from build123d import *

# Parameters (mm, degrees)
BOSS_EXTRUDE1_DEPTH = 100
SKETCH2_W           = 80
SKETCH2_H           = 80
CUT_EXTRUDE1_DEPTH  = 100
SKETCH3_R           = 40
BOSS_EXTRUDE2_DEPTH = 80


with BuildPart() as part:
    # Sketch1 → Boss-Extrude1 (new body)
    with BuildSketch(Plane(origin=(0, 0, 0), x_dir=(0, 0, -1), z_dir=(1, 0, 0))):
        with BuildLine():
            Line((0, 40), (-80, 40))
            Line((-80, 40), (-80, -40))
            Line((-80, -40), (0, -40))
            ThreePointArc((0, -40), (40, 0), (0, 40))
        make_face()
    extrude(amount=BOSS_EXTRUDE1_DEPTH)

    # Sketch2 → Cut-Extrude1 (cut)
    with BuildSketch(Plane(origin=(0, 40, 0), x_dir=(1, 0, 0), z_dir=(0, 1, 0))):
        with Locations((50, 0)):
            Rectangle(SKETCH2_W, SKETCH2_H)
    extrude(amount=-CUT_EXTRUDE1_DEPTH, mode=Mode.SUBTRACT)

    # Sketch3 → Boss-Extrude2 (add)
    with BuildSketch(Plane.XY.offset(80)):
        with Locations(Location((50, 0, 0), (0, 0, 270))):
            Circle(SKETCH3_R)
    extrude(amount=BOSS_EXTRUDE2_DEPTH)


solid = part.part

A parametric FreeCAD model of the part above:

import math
import FreeCAD as App
import Part
import Sketcher
from FreeCAD import Vector

doc = App.newDocument("Part")
body = doc.addObject("PartDesign::Body", "Body")

# Sketch on YZ plane
sketch1 = doc.addObject("Sketcher::SketchObject", "Sketch")
body.addObject(sketch1)
sketch1.AttachmentSupport = (doc.YZ_Plane, [""])
sketch1.MapMode = "FlatFace"
sketch1.addGeometry(Part.LineSegment(Vector(40, 0, 0), Vector(40, 80, 0)), False)
sketch1.addGeometry(Part.LineSegment(Vector(40, 80, 0), Vector(-40, 80, 0)), False)
sketch1.addGeometry(Part.LineSegment(Vector(-40, 80, 0), Vector(-40, 0, 0)), False)
sketch1.addGeometry(Part.ArcOfCircle(Part.Circle(Vector(0, 0, 0), Vector(0, 0, 1), 40), math.radians(180), math.radians(360)), False)
sketch1.addConstraint(Sketcher.Constraint("Coincident", 0, 2, 1, 1))
sketch1.addConstraint(Sketcher.Constraint("Coincident", 1, 2, 2, 1))
sketch1.addConstraint(Sketcher.Constraint("Tangent", 2, 2, 3, 1))
sketch1.addConstraint(Sketcher.Constraint("Tangent", 3, 2, 0, 1))
sketch1.addConstraint(Sketcher.Constraint("Vertical", 0))
sketch1.addConstraint(Sketcher.Constraint("Horizontal", 1))
sketch1.addConstraint(Sketcher.Constraint("Vertical", 2))
sketch1.addConstraint(Sketcher.Constraint("Coincident", 3, 3, -1, 1))
sketch1.addConstraint(Sketcher.Constraint("Equal", 1, 0))
sketch1.addConstraint(Sketcher.Constraint("Radius", 3, 40.0))
pad1 = doc.addObject("PartDesign::Pad", "Pad")
body.addObject(pad1)
pad1.Profile = sketch1
pad1.Length = 100

# Sketch on XZ plane
sketch2 = doc.addObject("Sketcher::SketchObject", "Sketch001")
body.addObject(sketch2)
sketch2.AttachmentSupport = (doc.XZ_Plane, [""])
sketch2.MapMode = "FlatFace"
sketch2.AttachmentOffset = App.Placement(Vector(0, 0, -40), App.Rotation())
sketch2.addGeometry(Part.LineSegment(Vector(10, -40, 0), Vector(10, 40, 0)), False)
sketch2.addGeometry(Part.LineSegment(Vector(10, 40, 0), Vector(90, 40, 0)), False)
sketch2.addGeometry(Part.LineSegment(Vector(90, 40, 0), Vector(90, -40, 0)), False)
sketch2.addGeometry(Part.LineSegment(Vector(90, -40, 0), Vector(10, -40, 0)), False)
sketch2.addConstraint(Sketcher.Constraint("Coincident", 0, 2, 1, 1))
sketch2.addConstraint(Sketcher.Constraint("Coincident", 1, 2, 2, 1))
sketch2.addConstraint(Sketcher.Constraint("Coincident", 2, 2, 3, 1))
sketch2.addConstraint(Sketcher.Constraint("Coincident", 3, 2, 0, 1))
sketch2.addConstraint(Sketcher.Constraint("Vertical", 0))
sketch2.addConstraint(Sketcher.Constraint("Horizontal", 1))
sketch2.addConstraint(Sketcher.Constraint("Vertical", 2))
sketch2.addConstraint(Sketcher.Constraint("Horizontal", 3))
sketch2.addConstraint(Sketcher.Constraint("Equal", 3, 0))
sketch2.addConstraint(Sketcher.Constraint("DistanceX", 1, 1, 1, 2, 80.0))
sketch2.addConstraint(Sketcher.Constraint("DistanceX", -1, 1, 0, 2, 10.0))
sketch2.addConstraint(Sketcher.Constraint("DistanceY", -1, 1, 0, 2, 40.0))
pocket1 = doc.addObject("PartDesign::Pocket", "Pocket")
body.addObject(pocket1)
pocket1.Profile = sketch2
pocket1.Length = 100
pocket1.Reversed = True

# Sketch on XY plane
sketch3 = doc.addObject("Sketcher::SketchObject", "Sketch002")
body.addObject(sketch3)
sketch3.AttachmentSupport = (doc.XY_Plane, [""])
sketch3.MapMode = "FlatFace"
sketch3.AttachmentOffset = App.Placement(Vector(0, 0, 80), App.Rotation())
sketch3.addGeometry(Part.Circle(Vector(50, 0, 0), Vector(0, 0, 1), 40), False)
sketch3.addConstraint(Sketcher.Constraint("PointOnObject", 0, 3, -1))
sketch3.addConstraint(Sketcher.Constraint("Diameter", 0, 80.0))
sketch3.addConstraint(Sketcher.Constraint("DistanceX", -1, 1, 0, 3, 50.0))
pad2 = doc.addObject("PartDesign::Pad", "Pad001")
body.addObject(pad2)
pad2.Profile = sketch3
pad2.Length = 80

doc.recompute()
